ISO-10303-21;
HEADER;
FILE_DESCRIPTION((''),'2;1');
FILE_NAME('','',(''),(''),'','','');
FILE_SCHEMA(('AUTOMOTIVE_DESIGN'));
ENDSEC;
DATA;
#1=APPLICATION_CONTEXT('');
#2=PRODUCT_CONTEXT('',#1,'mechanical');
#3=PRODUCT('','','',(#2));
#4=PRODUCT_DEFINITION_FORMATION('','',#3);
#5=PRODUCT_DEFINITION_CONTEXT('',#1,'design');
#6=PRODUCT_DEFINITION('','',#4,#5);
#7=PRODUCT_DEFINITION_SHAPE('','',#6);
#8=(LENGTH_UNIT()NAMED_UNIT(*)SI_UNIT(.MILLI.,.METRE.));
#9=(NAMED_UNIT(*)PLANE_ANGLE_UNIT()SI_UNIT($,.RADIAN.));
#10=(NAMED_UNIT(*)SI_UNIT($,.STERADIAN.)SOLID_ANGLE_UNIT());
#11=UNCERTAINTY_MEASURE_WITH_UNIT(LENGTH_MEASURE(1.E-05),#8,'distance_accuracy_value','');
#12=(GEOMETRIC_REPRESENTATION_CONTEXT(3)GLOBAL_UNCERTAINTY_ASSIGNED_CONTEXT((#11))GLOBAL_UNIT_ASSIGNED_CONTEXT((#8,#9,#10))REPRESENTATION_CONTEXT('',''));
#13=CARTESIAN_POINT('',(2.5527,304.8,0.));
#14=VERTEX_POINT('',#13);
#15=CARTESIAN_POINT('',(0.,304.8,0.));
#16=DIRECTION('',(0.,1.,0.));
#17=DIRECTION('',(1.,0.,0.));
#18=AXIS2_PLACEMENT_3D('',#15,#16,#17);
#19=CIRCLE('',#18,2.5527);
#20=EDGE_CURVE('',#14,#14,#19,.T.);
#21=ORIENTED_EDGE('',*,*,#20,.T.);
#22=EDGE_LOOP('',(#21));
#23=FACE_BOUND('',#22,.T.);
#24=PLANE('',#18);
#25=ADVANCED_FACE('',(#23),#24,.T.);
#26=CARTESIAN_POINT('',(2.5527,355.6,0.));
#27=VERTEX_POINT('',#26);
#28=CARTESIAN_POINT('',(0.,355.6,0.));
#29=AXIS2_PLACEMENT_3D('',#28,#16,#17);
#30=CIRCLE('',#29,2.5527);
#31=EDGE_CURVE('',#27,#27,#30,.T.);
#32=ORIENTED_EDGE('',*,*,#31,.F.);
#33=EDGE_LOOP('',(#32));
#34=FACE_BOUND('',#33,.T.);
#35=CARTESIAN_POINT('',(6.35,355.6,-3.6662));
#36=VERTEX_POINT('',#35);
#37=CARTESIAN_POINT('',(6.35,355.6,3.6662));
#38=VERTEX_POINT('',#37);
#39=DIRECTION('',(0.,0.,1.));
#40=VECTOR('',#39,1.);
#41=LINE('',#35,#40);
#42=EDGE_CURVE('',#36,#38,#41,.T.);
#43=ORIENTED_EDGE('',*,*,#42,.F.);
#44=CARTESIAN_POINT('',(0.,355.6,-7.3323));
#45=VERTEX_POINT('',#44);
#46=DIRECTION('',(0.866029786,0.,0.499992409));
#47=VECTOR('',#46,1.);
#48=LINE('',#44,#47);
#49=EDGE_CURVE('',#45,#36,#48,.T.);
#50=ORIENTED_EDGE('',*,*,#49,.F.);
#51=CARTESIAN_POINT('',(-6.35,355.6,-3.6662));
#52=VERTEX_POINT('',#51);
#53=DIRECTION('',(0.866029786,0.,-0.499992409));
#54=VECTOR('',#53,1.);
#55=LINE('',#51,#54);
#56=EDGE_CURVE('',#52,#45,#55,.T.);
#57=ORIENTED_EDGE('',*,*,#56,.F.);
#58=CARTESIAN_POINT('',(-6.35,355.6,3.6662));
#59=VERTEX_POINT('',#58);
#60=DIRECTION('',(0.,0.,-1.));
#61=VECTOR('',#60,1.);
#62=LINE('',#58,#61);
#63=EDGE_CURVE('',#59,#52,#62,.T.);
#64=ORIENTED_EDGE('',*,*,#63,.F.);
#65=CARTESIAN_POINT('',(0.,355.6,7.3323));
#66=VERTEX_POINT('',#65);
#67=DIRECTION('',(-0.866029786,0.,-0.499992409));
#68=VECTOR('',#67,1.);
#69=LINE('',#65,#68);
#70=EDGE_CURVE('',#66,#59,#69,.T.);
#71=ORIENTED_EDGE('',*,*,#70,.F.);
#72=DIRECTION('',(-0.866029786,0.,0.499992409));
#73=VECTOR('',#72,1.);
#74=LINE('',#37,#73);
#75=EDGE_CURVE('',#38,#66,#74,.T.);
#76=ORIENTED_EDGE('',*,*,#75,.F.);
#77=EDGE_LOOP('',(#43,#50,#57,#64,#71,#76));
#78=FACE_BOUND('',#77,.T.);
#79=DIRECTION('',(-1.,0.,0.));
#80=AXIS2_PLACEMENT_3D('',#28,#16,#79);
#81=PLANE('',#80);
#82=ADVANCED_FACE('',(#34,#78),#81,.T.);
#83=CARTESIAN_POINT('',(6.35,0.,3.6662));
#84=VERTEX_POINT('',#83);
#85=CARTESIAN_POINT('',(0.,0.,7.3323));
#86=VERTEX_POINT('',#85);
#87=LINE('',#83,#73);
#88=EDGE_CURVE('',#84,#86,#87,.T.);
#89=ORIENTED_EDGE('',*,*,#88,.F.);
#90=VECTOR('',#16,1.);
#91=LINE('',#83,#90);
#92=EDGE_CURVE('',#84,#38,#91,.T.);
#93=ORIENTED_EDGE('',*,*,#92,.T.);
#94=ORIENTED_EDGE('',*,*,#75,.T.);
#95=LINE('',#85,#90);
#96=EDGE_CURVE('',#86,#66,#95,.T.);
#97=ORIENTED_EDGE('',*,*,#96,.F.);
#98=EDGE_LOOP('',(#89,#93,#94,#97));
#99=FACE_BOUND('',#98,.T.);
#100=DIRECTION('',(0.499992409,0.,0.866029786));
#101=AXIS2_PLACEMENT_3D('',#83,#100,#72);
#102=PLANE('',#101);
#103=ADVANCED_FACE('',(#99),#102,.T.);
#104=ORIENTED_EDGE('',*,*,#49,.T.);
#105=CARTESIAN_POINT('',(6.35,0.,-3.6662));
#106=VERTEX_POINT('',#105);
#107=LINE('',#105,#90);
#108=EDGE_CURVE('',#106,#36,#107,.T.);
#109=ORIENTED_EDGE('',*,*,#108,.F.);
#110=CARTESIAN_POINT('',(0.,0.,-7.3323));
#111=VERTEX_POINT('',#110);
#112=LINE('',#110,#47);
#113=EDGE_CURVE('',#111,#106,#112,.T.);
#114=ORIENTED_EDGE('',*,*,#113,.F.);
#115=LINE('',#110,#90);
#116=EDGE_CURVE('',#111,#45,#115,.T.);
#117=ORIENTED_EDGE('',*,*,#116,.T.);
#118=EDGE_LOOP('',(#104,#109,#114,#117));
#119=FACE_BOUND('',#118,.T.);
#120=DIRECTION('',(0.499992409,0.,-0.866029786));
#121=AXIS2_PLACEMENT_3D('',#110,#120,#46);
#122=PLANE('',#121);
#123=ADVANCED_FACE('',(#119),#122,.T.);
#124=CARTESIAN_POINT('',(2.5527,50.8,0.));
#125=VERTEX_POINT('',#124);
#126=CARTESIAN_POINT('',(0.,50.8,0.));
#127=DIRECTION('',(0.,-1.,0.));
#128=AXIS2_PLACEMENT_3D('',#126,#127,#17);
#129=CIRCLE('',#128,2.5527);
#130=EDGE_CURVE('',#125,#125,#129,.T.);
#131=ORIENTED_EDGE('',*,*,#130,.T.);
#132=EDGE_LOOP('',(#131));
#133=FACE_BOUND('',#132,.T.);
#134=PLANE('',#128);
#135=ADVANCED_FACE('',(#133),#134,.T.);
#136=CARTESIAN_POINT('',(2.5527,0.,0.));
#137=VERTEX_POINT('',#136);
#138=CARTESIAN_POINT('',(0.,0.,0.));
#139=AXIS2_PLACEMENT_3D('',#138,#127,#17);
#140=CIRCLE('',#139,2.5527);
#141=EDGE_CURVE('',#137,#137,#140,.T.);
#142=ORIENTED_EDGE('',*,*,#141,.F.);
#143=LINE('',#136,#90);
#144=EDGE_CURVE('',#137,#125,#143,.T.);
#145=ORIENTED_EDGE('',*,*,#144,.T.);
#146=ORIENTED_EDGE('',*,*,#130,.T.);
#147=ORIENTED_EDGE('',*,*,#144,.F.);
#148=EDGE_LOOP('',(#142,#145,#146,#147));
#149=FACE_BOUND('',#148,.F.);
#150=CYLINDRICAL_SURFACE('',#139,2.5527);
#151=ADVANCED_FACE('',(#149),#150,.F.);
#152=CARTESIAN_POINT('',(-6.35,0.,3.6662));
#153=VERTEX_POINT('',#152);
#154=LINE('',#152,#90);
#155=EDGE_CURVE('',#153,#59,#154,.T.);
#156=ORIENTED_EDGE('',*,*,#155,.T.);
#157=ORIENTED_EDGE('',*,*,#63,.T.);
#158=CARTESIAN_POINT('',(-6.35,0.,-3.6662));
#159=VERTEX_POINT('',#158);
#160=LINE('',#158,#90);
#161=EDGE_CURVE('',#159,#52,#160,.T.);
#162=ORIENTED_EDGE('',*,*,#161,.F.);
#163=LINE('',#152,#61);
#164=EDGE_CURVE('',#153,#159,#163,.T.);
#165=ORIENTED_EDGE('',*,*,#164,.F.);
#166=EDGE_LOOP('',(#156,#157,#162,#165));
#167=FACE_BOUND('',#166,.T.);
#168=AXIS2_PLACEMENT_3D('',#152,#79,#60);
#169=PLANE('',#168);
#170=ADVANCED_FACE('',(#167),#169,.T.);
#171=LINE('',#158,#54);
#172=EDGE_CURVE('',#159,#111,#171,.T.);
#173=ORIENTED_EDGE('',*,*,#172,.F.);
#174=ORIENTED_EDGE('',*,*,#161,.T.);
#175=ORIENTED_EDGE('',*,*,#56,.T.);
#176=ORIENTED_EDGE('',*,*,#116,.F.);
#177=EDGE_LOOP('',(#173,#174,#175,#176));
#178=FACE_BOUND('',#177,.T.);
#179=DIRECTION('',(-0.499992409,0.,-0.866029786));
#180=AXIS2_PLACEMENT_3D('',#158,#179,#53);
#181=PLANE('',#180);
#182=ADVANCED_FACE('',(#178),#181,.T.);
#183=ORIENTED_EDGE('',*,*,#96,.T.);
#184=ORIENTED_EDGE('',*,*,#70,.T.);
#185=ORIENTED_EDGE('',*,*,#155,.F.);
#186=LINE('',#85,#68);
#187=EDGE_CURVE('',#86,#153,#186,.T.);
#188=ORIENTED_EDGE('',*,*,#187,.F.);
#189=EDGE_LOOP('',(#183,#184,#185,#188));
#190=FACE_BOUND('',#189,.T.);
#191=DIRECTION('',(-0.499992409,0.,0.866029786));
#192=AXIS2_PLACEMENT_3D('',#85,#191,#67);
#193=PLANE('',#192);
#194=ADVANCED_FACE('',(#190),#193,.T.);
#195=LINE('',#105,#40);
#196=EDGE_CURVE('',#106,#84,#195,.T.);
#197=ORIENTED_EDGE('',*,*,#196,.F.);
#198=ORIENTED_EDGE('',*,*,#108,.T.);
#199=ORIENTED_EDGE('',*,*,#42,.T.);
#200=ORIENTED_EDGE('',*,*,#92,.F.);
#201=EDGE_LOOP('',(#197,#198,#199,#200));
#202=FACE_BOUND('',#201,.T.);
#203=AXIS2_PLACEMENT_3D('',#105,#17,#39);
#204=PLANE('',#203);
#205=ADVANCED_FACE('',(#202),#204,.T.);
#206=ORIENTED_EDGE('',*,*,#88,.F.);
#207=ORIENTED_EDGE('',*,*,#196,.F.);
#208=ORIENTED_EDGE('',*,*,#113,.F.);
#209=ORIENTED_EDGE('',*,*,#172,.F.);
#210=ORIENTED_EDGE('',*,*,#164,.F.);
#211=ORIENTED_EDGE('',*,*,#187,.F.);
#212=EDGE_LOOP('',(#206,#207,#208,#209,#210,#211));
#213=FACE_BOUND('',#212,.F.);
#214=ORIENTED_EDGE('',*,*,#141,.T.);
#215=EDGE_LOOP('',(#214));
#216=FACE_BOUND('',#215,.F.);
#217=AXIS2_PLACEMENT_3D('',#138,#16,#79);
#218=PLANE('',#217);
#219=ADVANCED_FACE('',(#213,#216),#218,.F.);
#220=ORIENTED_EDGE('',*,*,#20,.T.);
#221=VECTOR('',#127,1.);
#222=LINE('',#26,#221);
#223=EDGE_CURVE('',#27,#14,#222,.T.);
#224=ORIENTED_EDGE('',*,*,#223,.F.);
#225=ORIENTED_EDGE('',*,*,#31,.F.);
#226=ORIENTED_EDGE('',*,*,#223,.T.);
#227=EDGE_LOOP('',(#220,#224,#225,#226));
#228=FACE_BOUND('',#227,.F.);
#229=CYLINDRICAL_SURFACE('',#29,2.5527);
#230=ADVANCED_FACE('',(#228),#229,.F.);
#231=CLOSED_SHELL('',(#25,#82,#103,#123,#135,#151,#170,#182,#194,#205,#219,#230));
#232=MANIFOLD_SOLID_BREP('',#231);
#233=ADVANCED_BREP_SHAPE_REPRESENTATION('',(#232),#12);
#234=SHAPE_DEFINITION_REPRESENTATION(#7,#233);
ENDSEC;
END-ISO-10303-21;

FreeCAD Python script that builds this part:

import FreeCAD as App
import Part
import Sketcher

V = App.Vector
Q = App.Units.Quantity

doc = App.newDocument("Part")
body = doc.addObject("PartDesign::Body", "Body")

sketch1 = body.newObject("Sketcher::SketchObject", "Sketch")
sketch1.AttachmentSupport = (doc.getObject("XZ_Plane"), [""])
sketch1.MapMode = "FlatFace"
sketch1.addGeometry(Part.LineSegment(V(-6, -4, 0), V(-6, 4, 0)), False)
sketch1.addGeometry(Part.LineSegment(V(-6, 4, 0), V(0, 7, 0)), False)
sketch1.addGeometry(Part.LineSegment(V(0, 7, 0), V(6, 4, 0)), False)
sketch1.addGeometry(Part.LineSegment(V(6, 4, 0), V(6, -4, 0)), False)
sketch1.addGeometry(Part.LineSegment(V(6, -4, 0), V(0, -7, 0)), False)
sketch1.addGeometry(Part.LineSegment(V(0, -7, 0), V(-6, -4, 0)), False)
sketch1.addConstraint(Sketcher.Constraint("Coincident", 0, 2, 1, 1))
sketch1.addConstraint(Sketcher.Constraint("Coincident", 1, 2, 2, 1))
sketch1.addConstraint(Sketcher.Constraint("Coincident", 2, 2, 3, 1))
sketch1.addConstraint(Sketcher.Constraint("Coincident", 3, 2, 4, 1))
sketch1.addConstraint(Sketcher.Constraint("Coincident", 4, 2, 5, 1))
sketch1.addConstraint(Sketcher.Constraint("Coincident", 5, 2, 0, 1))
sketch1.addConstraint(Sketcher.Constraint("Vertical", 0))
sketch1.addConstraint(Sketcher.Constraint("Vertical", 3))
sketch1.addConstraint(Sketcher.Constraint("Symmetric", 0, 2, 3, 2, -1, 1))
sketch1.addConstraint(Sketcher.Constraint("Symmetric", 1, 2, 4, 2, -1, 1))
sketch1.addConstraint(Sketcher.Constraint("PointOnObject", 1, 2, -2))
sketch1.addConstraint(Sketcher.Constraint("Parallel", 2, 5))
sketch1.addConstraint(Sketcher.Constraint("Horizontal", 0, 2, 2, 2))
sketch1.addConstraint(Sketcher.Constraint("DistanceX", 0, 2, 2, 2, Q("0.5 in")))
sketch1.addConstraint(Sketcher.Constraint("Angle", 1, Q("29.9995 deg")))
sketch1.addConstraint(Sketcher.Constraint("DistanceY", 3, 2, 1, 2, Q("0.433 in")))
pad1 = body.newObject("PartDesign::Pad", "Pad")
pad1.Profile = sketch1
pad1.Length = Q("14 in")
pad1.Reversed = True

sketch2 = body.newObject("Sketcher::SketchObject", "Sketch001")
sketch2.AttachmentSupport = (doc.getObject("XZ_Plane"), [""])
sketch2.MapMode = "FlatFace"
sketch2.AttachmentOffset = App.Placement(V(0, 0, -14 * 25.4), App.Rotation())
sketch2.addGeometry(Part.Circle(V(0, 0, 0), V(0, 0, 1), 2.6), False)
sketch2.addConstraint(Sketcher.Constraint("Coincident", 0, 3, -1, 1))
sketch2.addConstraint(Sketcher.Constraint("Diameter", 0, Q("0.201 in")))
pocket1 = body.newObject("PartDesign::Pocket", "Pocket")
pocket1.Profile = sketch2
pocket1.Length = Q("2 in")
pocket1.Reversed = True

sketch3 = body.newObject("Sketcher::SketchObject", "Sketch002")
sketch3.AttachmentSupport = (doc.getObject("XZ_Plane"), [""])
sketch3.MapMode = "FlatFace"
sketch3.addGeometry(Part.Circle(V(0, 0, 0), V(0, 0, 1), 2.6), False)
sketch3.addConstraint(Sketcher.Constraint("Coincident", 0, 3, -1, 1))
sketch3.addConstraint(Sketcher.Constraint("Diameter", 0, Q("0.201 in")))
pocket2 = body.newObject("PartDesign::Pocket", "Pocket001")
pocket2.Profile = sketch3
pocket2.Length = Q("2 in")

doc.recompute()
